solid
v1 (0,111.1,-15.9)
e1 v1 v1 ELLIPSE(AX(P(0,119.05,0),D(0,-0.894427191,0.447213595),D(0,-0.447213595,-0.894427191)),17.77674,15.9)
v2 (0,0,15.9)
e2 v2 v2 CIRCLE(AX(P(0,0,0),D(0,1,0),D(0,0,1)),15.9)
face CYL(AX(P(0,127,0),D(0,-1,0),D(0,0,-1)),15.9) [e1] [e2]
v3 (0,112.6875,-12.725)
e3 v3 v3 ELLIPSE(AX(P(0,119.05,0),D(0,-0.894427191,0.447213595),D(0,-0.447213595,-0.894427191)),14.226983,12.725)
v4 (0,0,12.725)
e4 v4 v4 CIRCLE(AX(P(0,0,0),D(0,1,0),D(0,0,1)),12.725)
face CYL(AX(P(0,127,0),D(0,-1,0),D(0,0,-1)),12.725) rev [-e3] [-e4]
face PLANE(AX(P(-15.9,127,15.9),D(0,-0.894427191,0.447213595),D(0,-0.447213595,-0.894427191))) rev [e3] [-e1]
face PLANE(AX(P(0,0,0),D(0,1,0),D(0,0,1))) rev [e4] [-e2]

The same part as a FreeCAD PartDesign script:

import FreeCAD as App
import Part
import Sketcher

V = App.Vector
Q = App.Units.Quantity

doc = App.newDocument("Part")
body = doc.addObject("PartDesign::Body", "Body")

sketch1 = body.newObject("Sketcher::SketchObject", "Sketch")
sketch1.AttachmentSupport = (doc.getObject("XZ_Plane"), [""])
sketch1.MapMode = "FlatFace"
sketch1.addGeometry([
    Part.Circle(V(0, 0, 0), V(0, 0, 1), 16),
    Part.Circle(V(0, 0, 0), V(0, 0, 1), 13),
], False)
sketch1.addConstraint([
    Sketcher.Constraint("Coincident", 0, 3, -1, 1),
    Sketcher.Constraint("Coincident", 1, 3, -1, 1),
    Sketcher.Constraint("Diameter", 0, Q("31.8 mm")),
    Sketcher.Constraint("Diameter", 1, Q("25.45 mm")),
])
pad1 = body.newObject("PartDesign::Pad", "Pad")
pad1.Profile = sketch1
pad1.Length = 127
pad1.Reversed = True

sketch2 = body.newObject("Sketcher::SketchObject", "Sketch001")
sketch2.AttachmentSupport = (doc.getObject("YZ_Plane"), [""])
sketch2.MapMode = "FlatFace"
sketch2.addGeometry([
    Part.LineSegment(V(127, -16, 0), V(127, 16, 0)),
    Part.LineSegment(V(127, 16, 0), V(111, -16, 0)),
    Part.LineSegment(V(111, -16, 0), V(127, -16, 0)),
], False)
sketch2.addConstraint([
    Sketcher.Constraint("Coincident", 0, 2, 1, 1),
    Sketcher.Constraint("Coincident", 1, 2, 2, 1),
    Sketcher.Constraint("Coincident", 2, 2, 0, 1),
    Sketcher.Constraint("Vertical", 0),
    Sketcher.Constraint("Horizontal", 2),
    Sketcher.Constraint("DistanceX", 2, 1, 2, 2, Q("15.9 mm")),
    Sketcher.Constraint("DistanceY", 0, 1, 0, 2, Q("31.8 mm")),
    Sketcher.Constraint("DistanceX", -1, 1, 0, 2, Q("127 mm")),
    Sketcher.Constraint("DistanceY", -1, 1, 0, 2, Q("15.9 mm")),
])
pocket1 = body.newObject("PartDesign::Pocket", "Pocket")
pocket1.Profile = sketch2
pocket1.Type = "ThroughAll"
pocket1.Midplane = True

doc.recompute()
